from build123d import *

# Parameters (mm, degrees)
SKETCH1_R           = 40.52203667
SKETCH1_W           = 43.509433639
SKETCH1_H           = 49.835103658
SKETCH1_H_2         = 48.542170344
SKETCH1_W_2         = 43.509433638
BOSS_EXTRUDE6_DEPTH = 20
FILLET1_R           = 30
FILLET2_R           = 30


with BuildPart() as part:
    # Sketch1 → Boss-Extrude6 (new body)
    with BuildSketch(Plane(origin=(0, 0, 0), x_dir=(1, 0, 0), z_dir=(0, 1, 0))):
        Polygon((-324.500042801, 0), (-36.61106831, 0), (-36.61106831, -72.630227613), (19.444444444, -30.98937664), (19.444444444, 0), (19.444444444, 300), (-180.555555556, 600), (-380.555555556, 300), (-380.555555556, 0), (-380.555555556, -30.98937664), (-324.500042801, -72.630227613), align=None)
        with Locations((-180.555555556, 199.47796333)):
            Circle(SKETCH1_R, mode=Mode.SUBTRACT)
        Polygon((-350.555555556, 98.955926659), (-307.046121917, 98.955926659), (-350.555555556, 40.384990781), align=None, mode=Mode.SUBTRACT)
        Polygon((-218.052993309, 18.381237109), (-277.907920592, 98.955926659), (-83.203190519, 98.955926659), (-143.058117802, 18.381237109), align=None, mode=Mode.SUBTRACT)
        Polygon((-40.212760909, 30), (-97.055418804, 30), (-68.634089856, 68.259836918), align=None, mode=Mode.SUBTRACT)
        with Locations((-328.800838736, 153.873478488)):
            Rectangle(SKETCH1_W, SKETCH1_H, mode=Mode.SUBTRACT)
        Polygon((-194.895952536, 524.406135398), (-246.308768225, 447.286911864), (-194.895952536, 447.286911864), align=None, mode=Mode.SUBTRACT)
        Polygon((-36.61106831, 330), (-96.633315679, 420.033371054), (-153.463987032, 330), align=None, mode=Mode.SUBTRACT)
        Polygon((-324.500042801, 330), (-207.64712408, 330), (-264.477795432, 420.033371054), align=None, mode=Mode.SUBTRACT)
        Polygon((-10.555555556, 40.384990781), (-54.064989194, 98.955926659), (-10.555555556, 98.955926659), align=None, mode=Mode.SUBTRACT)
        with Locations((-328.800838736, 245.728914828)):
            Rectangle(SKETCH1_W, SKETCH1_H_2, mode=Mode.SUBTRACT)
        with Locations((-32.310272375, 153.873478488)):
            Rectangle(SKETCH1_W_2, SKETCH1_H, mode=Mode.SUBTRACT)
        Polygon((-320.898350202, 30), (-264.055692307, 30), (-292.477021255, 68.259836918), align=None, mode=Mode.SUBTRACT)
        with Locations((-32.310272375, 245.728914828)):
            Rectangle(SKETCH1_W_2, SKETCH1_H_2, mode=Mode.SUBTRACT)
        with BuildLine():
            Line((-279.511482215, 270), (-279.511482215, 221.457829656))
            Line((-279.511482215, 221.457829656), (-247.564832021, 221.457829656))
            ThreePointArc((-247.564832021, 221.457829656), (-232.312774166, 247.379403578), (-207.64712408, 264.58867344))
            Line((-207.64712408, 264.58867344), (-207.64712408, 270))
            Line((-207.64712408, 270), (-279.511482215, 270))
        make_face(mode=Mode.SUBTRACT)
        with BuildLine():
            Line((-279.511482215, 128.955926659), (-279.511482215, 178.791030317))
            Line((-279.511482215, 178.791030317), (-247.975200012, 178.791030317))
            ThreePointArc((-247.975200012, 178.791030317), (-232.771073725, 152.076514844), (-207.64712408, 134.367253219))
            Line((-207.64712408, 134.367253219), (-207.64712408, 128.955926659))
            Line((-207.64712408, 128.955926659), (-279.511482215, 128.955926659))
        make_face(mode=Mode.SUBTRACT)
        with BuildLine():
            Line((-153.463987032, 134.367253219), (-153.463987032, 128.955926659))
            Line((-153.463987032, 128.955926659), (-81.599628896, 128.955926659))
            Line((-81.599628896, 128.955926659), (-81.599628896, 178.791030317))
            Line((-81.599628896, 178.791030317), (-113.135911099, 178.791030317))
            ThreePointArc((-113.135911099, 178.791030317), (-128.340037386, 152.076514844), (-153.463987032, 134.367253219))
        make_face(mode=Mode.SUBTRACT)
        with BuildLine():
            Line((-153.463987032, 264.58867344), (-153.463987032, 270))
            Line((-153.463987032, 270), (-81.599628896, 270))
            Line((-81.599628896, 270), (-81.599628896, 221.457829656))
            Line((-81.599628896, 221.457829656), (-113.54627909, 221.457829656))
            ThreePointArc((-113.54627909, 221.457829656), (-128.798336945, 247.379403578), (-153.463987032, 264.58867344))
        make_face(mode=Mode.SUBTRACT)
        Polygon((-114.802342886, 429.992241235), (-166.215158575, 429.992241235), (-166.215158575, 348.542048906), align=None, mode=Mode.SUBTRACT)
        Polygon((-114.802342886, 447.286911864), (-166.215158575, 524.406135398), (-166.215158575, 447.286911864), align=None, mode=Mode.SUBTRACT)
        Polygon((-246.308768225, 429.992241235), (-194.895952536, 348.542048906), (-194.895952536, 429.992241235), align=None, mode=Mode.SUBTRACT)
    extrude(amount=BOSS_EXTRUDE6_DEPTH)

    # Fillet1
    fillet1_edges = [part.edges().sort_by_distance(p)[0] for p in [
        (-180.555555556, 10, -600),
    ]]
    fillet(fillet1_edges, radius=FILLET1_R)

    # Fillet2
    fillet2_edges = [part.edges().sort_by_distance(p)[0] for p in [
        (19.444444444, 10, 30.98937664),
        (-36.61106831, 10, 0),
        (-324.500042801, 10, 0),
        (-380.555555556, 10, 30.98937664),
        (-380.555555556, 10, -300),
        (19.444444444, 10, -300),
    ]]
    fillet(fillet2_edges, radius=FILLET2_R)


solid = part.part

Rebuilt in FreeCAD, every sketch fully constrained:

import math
import FreeCAD as App
import Part
import Sketcher
from FreeCAD import Vector


def edges_at(feature, points):
    """Names of the edges that pass closest to the given points."""
    edges = feature.Shape.Edges
    near = lambda p: min(range(len(edges)), key=lambda i: edges[i].distToShape(Part.Vertex(*p))[0])
    return sorted({f"Edge{near(p) + 1}" for p in points})


def add_polygon(sketch, points):
    """Adds a closed chain of lines whose ends are joined by coincident constraints."""
    first, n = sketch.GeometryCount, len(points)
    for a, b in zip(points, points[1:] + points[:1]):
        sketch.addGeometry(Part.LineSegment(App.Vector(*a, 0), App.Vector(*b, 0)), False)
    for i in range(n):
        sketch.addConstraint(Sketcher.Constraint("Coincident", first + i, 2, first + (i + 1) % n, 1))

doc = App.newDocument("Part")
body = doc.addObject("PartDesign::Body", "Body")

# Sketch on XZ plane
sketch1 = body.newObject("Sketcher::SketchObject", "Sketch")
sketch1.AttachmentSupport = (doc.getObject("XZ_Plane"), [""])
sketch1.MapMode = "FlatFace"
add_polygon(sketch1, [(-325, 0), (-37, 0), (-37, 73), (19, 31), (19, -300), (-181, -600), (-381, -300), (-381, 31), (-325, 73)])  # lines 0-8
add_polygon(sketch1, [(-351, -40), (-351, -99), (-307, -99)])  # lines 9-11
add_polygon(sketch1, [(-264, -30), (-321, -30), (-292, -68)])  # lines 12-14
add_polygon(sketch1, [(-307, -129), (-351, -129), (-351, -179), (-307, -179)])  # lines 15-18
add_polygon(sketch1, [(-307, -221), (-351, -221), (-351, -270), (-307, -270)])  # lines 19-22
sketch1.addGeometry(Part.LineSegment(Vector(-208, -129, 0), Vector(-280, -129, 0)), False)  # 23
sketch1.addGeometry(Part.LineSegment(Vector(-280, -129, 0), Vector(-280, -179, 0)), False)  # 24
sketch1.addGeometry(Part.LineSegment(Vector(-280, -179, 0), Vector(-248, -179, 0)), False)  # 25
sketch1.addGeometry(Part.ArcOfCircle(Part.Circle(Vector(-181, -199, 0), Vector(0, 0, 1), 71), math.radians(113), math.radians(163)), False)  # 26
sketch1.addGeometry(Part.LineSegment(Vector(-208, -134, 0), Vector(-208, -129, 0)), False)  # 27
sketch1.addGeometry(Part.LineSegment(Vector(-280, -221, 0), Vector(-280, -270, 0)), False)  # 28
sketch1.addGeometry(Part.LineSegment(Vector(-280, -270, 0), Vector(-208, -270, 0)), False)  # 29
sketch1.addGeometry(Part.LineSegment(Vector(-208, -270, 0), Vector(-208, -265, 0)), False)  # 30
sketch1.addGeometry(Part.ArcOfCircle(Part.Circle(Vector(-181, -199, 0), Vector(0, 0, 1), 71), math.radians(-162), math.radians(-113)), False)  # 31
sketch1.addGeometry(Part.LineSegment(Vector(-248, -221, 0), Vector(-280, -221, 0)), False)  # 32
add_polygon(sketch1, [(-143, -18), (-218, -18), (-278, -99), (-83, -99)])  # lines 33-36
add_polygon(sketch1, [(-69, -68), (-40, -30), (-97, -30)])  # lines 37-39
add_polygon(sketch1, [(-11, -99), (-11, -40), (-54, -99)])  # lines 40-42
sketch1.addGeometry(Part.Circle(Vector(-181, -199, 0), Vector(0, 0, 1), 41), False)  # 43
sketch1.addGeometry(Part.LineSegment(Vector(-153, -129, 0), Vector(-153, -134, 0)), False)  # 44
sketch1.addGeometry(Part.ArcOfCircle(Part.Circle(Vector(-181, -199, 0), Vector(0, 0, 1), 71), math.radians(17), math.radians(67)), False)  # 45
sketch1.addGeometry(Part.LineSegment(Vector(-113, -179, 0), Vector(-82, -179, 0)), False)  # 46
sketch1.addGeometry(Part.LineSegment(Vector(-82, -179, 0), Vector(-82, -129, 0)), False)  # 47
sketch1.addGeometry(Part.LineSegment(Vector(-82, -129, 0), Vector(-153, -129, 0)), False)  # 48
sketch1.addGeometry(Part.ArcOfCircle(Part.Circle(Vector(-181, -199, 0), Vector(0, 0, 1), 71), math.radians(-67), math.radians(-18)), False)  # 49
sketch1.addGeometry(Part.LineSegment(Vector(-153, -265, 0), Vector(-153, -270, 0)), False)  # 50
sketch1.addGeometry(Part.LineSegment(Vector(-153, -270, 0), Vector(-82, -270, 0)), False)  # 51
sketch1.addGeometry(Part.LineSegment(Vector(-82, -270, 0), Vector(-82, -221, 0)), False)  # 52
sketch1.addGeometry(Part.LineSegment(Vector(-82, -221, 0), Vector(-114, -221, 0)), False)  # 53
add_polygon(sketch1, [(-11, -129), (-54, -129), (-54, -179), (-11, -179)])  # lines 54-57
add_polygon(sketch1, [(-11, -221), (-54, -221), (-54, -270), (-11, -270)])  # lines 58-61
add_polygon(sketch1, [(-208, -330), (-325, -330), (-264, -420)])  # lines 62-64
add_polygon(sketch1, [(-195, -349), (-246, -430), (-195, -430)])  # lines 65-67
add_polygon(sketch1, [(-246, -447), (-195, -524), (-195, -447)])  # lines 68-70
add_polygon(sketch1, [(-166, -430), (-115, -430), (-166, -349)])  # lines 71-73
add_polygon(sketch1, [(-97, -420), (-37, -330), (-153, -330)])  # lines 74-76
add_polygon(sketch1, [(-166, -524), (-115, -447), (-166, -447)])  # lines 77-79
sketch1.addConstraint([
    Sketcher.Constraint("Coincident", 23, 2, 24, 1),
    Sketcher.Constraint("Coincident", 24, 2, 25, 1),
    Sketcher.Constraint("Coincident", 25, 2, 26, 2),
    Sketcher.Constraint("Coincident", 26, 1, 27, 1),
    Sketcher.Constraint("Coincident", 27, 2, 23, 1),
    Sketcher.Constraint("Coincident", 28, 2, 29, 1),
    Sketcher.Constraint("Coincident", 29, 2, 30, 1),
    Sketcher.Constraint("Coincident", 30, 2, 31, 2),
    Sketcher.Constraint("Coincident", 31, 1, 32, 1),
    Sketcher.Constraint("Coincident", 32, 2, 28, 1),
    Sketcher.Constraint("Coincident", 44, 2, 45, 2),
    Sketcher.Constraint("Coincident", 45, 1, 46, 1),
    Sketcher.Constraint("Coincident", 46, 2, 47, 1),
    Sketcher.Constraint("Coincident", 47, 2, 48, 1),
    Sketcher.Constraint("Coincident", 48, 2, 44, 1),
    Sketcher.Constraint("Coincident", 49, 1, 50, 1),
    Sketcher.Constraint("Coincident", 50, 2, 51, 1),
    Sketcher.Constraint("Coincident", 51, 2, 52, 1),
    Sketcher.Constraint("Coincident", 52, 2, 53, 1),
    Sketcher.Constraint("Coincident", 53, 2, 49, 2),
    Sketcher.Constraint("Horizontal", 0),
    Sketcher.Constraint("Vertical", 1),
    Sketcher.Constraint("Vertical", 3),
    Sketcher.Constraint("Vertical", 6),
    Sketcher.Constraint("Vertical", 8),
    Sketcher.Constraint("Vertical", 9),
    Sketcher.Constraint("Horizontal", 10),
    Sketcher.Constraint("Horizontal", 12),
    Sketcher.Constraint("Horizontal", 15),
    Sketcher.Constraint("Vertical", 16),
    Sketcher.Constraint("Horizontal", 17),
    Sketcher.Constraint("Vertical", 18),
    Sketcher.Constraint("Horizontal", 19),
    Sketcher.Constraint("Vertical", 20),
    Sketcher.Constraint("Horizontal", 21),
    Sketcher.Constraint("Vertical", 22),
    Sketcher.Constraint("Horizontal", 23),
    Sketcher.Constraint("Vertical", 24),
    Sketcher.Constraint("Horizontal", 25),
    Sketcher.Constraint("Vertical", 27),
    Sketcher.Constraint("Vertical", 28),
    Sketcher.Constraint("Horizontal", 29),
    Sketcher.Constraint("Vertical", 30),
    Sketcher.Constraint("Horizontal", 32),
    Sketcher.Constraint("Horizontal", 33),
    Sketcher.Constraint("Horizontal", 35),
    Sketcher.Constraint("Horizontal", 38),
    Sketcher.Constraint("Vertical", 40),
    Sketcher.Constraint("Horizontal", 42),
    Sketcher.Constraint("Vertical", 44),
    Sketcher.Constraint("Horizontal", 46),
    Sketcher.Constraint("Vertical", 47),
    Sketcher.Constraint("Horizontal", 48),
    Sketcher.Constraint("Vertical", 50),
    Sketcher.Constraint("Horizontal", 51),
    Sketcher.Constraint("Vertical", 52),
    Sketcher.Constraint("Horizontal", 53),
    Sketcher.Constraint("Horizontal", 54),
    Sketcher.Constraint("Vertical", 55),
    Sketcher.Constraint("Horizontal", 56),
    Sketcher.Constraint("Vertical", 57),
    Sketcher.Constraint("Horizontal", 58),
    Sketcher.Constraint("Vertical", 59),
    Sketcher.Constraint("Horizontal", 60),
    Sketcher.Constraint("Vertical", 61),
    Sketcher.Constraint("Horizontal", 62),
    Sketcher.Constraint("Horizontal", 66),
    Sketcher.Constraint("Vertical", 67),
    Sketcher.Constraint("Vertical", 69),
    Sketcher.Constraint("Horizontal", 70),
    Sketcher.Constraint("Horizontal", 71),
    Sketcher.Constraint("Vertical", 73),
    Sketcher.Constraint("Horizontal", 75),
    Sketcher.Constraint("Horizontal", 78),
    Sketcher.Constraint("Vertical", 79),
    Sketcher.Constraint("Coincident", 31, 3, 26, 3),
    Sketcher.Constraint("Coincident", 43, 3, 26, 3),
    Sketcher.Constraint("Coincident", 45, 3, 26, 3),
    Sketcher.Constraint("Coincident", 49, 3, 26, 3),
    Sketcher.Constraint("Equal", 26, 31),
    Sketcher.Constraint("Equal", 31, 45),
    Sketcher.Constraint("Equal", 45, 49),
    Sketcher.Constraint("PointOnObject", 0, 2, -1),
    Sketcher.Constraint("Perpendicular", 7, 11),
    Sketcher.Constraint("Parallel", 11, 13),
    Sketcher.Constraint("Perpendicular", 2, 14),
    Sketcher.Constraint("Parallel", 14, 34),
    Sketcher.Constraint("Parallel", 13, 36),
    Sketcher.Constraint("Parallel", 34, 37),
    Sketcher.Constraint("Parallel", 36, 39),
    Sketcher.Constraint("Parallel", 37, 41),
    Sketcher.Constraint("Parallel", 5, 63),
    Sketcher.Constraint("Parallel", 64, 65),
    Sketcher.Constraint("Parallel", 63, 68),
    Sketcher.Constraint("Parallel", 4, 74),
    Sketcher.Constraint("Parallel", 72, 76),
    Sketcher.Constraint("Parallel", 74, 77),
    Sketcher.Constraint("Horizontal", 3, 2, 5, 2),
    Sketcher.Constraint("Horizontal", 2, 2, 6, 2),
    Sketcher.Constraint("Horizontal", 1, 2, 7, 2),
    Sketcher.Constraint("Horizontal", 18, 2, 23, 2),
    Sketcher.Constraint("Horizontal", 17, 2, 24, 2),
    Sketcher.Constraint("Horizontal", 21, 2, 28, 2),
    Sketcher.Constraint("Horizontal", 22, 2, 31, 1),
    Sketcher.Constraint("Horizontal", 10, 2, 34, 2),
    Sketcher.Constraint("Horizontal", 14, 2, 37, 2),
    Sketcher.Constraint("Horizontal", 13, 2, 39, 2),
    Sketcher.Constraint("Horizontal", 11, 2, 40, 2),
    Sketcher.Constraint("Horizontal", 35, 2, 41, 2),
    Sketcher.Constraint("Horizontal", 26, 1, 44, 2),
    Sketcher.Constraint("Horizontal", 25, 2, 45, 1),
    Sketcher.Constraint("Horizontal", 27, 2, 47, 2),
    Sketcher.Constraint("Horizontal", 30, 2, 49, 1),
    Sketcher.Constraint("Horizontal", 29, 2, 50, 2),
    Sketcher.Constraint("Horizontal", 32, 2, 52, 2),
    Sketcher.Constraint("Horizontal", 48, 2, 54, 2),
    Sketcher.Constraint("Horizontal", 46, 2, 55, 2),
    Sketcher.Constraint("Horizontal", 53, 2, 58, 2),
    Sketcher.Constraint("Horizontal", 51, 2, 59, 2),
    Sketcher.Constraint("Horizontal", 66, 2, 71, 2),
    Sketcher.Constraint("Horizontal", 67, 2, 72, 2),
    Sketcher.Constraint("Horizontal", 64, 2, 74, 2),
    Sketcher.Constraint("Horizontal", 63, 2, 76, 2),
    Sketcher.Constraint("Horizontal", 70, 2, 77, 2),
    Sketcher.Constraint("Horizontal", 68, 2, 79, 2),
    Sketcher.Constraint("Vertical", 49, 3, 4, 2),
    Sketcher.Constraint("Vertical", 11, 2, 15, 2),
    Sketcher.Constraint("Vertical", 10, 2, 17, 2),
    Sketcher.Constraint("Vertical", 16, 2, 19, 2),
    Sketcher.Constraint("Vertical", 18, 2, 21, 2),
    Sketcher.Constraint("Vertical", 24, 2, 28, 2),
    Sketcher.Constraint("Vertical", 27, 2, 29, 2),
    Sketcher.Constraint("Vertical", 47, 2, 51, 2),
    Sketcher.Constraint("Vertical", 41, 2, 54, 2),
    Sketcher.Constraint("Vertical", 42, 2, 56, 2),
    Sketcher.Constraint("Vertical", 55, 2, 58, 2),
    Sketcher.Constraint("Vertical", 57, 2, 60, 2),
    Sketcher.Constraint("Vertical", 8, 2, 62, 2),
    Sketcher.Constraint("Vertical", 30, 2, 64, 2),
    Sketcher.Constraint("Vertical", 67, 2, 68, 2),
    Sketcher.Constraint("Vertical", 65, 2, 70, 2),
    Sketcher.Constraint("Vertical", 1, 2, 74, 2),
    Sketcher.Constraint("Vertical", 50, 2, 75, 2),
    Sketcher.Constraint("Vertical", 71, 2, 77, 2),
    Sketcher.Constraint("Vertical", 73, 2, 78, 2),
    Sketcher.Constraint("Equal", 21, 42),
    Sketcher.Constraint("Equal", 25, 46),
    Sketcher.Constraint("Equal", 27, 30),
    Sketcher.Constraint("DistanceY", 3, 2, -1, 1, 300.0),
    Sketcher.Constraint("DistanceY", 4, 2, -1, 1, 600.0),
    Sketcher.Constraint("DistanceY", 12, 2, -1, 1, 30.0),
    Sketcher.Constraint("DistanceY", 20, 2, -1, 1, 270.0),
    Sketcher.Constraint("DistanceY", 62, 2, -1, 1, 330.0),
    Sketcher.Constraint("Diameter", 43, 81.044073),
    Sketcher.Constraint("Radius", 26, 70.522037),
    Sketcher.Constraint("Distance", 64, 106.4694),
    Sketcher.Constraint("DistanceX", 23, 2, 23, 1, 71.864358),
    Sketcher.Constraint("DistanceX", 32, 2, 32, 1, 31.94665),
    Sketcher.Constraint("DistanceX", 35, 1, 35, 2, 194.70473),
    Sketcher.Constraint("DistanceX", 62, 2, 62, 1, 116.852919),
    Sketcher.Constraint("DistanceY", 20, 2, 20, 1, 48.54217),
    Sketcher.Constraint("DistanceX", 25, 2, -1, 1, 247.9752),
    Sketcher.Constraint("Distance", 11, 72.963178),
    Sketcher.Constraint("Distance", 13, 47.661169),
    Sketcher.Constraint("Distance", 65, 96.31932),
    Sketcher.Constraint("Distance", 68, 92.685772),
    Sketcher.Constraint("DistanceX", 0, 1, 0, 2, 287.888974),
    Sketcher.Constraint("DistanceX", 10, 1, 10, 2, 43.509434),
    Sketcher.Constraint("DistanceX", 25, 1, 25, 2, 31.536282),
    Sketcher.Constraint("DistanceX", 33, 2, 33, 1, 74.994876),
    Sketcher.Constraint("DistanceY", 1, 1, 1, 2, 72.630228),
    Sketcher.Constraint("DistanceX", 10, 2, -1, 1, 307.046122),
    Sketcher.Constraint("DistanceY", 11, 2, -1, 1, 40.384991),
    Sketcher.Constraint("DistanceX", 12, 2, -1, 1, 320.89835),
    Sketcher.Constraint("DistanceX", 34, 2, -1, 1, 277.907921),
    Sketcher.Constraint("DistanceX", 37, 2, -1, 1, 40.212761),
    Sketcher.Constraint("DistanceX", 41, 2, -1, 1, 54.064989),
    Sketcher.Constraint("DistanceX", 65, 2, -1, 1, 246.308768),
    Sketcher.Constraint("DistanceY", 65, 2, -1, 1, 429.992241),
    Sketcher.Constraint("DistanceY", 69, 2, -1, 1, 447.286912),
    Sketcher.Constraint("DistanceX", 72, 2, -1, 1, 166.215159),
])
pad1 = body.newObject("PartDesign::Pad", "Pad")
pad1.Profile = sketch1
pad1.Length = 20
pad1.Reversed = True
doc.recompute()

fillet = body.newObject("PartDesign::Fillet", "Fillet")
fillet.Base = (pad1, edges_at(pad1, [(-180.556, 10, -600)]))
fillet.Radius = 30
doc.recompute()

fillet2 = body.newObject("PartDesign::Fillet", "Fillet001")
fillet2.Base = (fillet, edges_at(fillet, [
    (19.444, 10, 30.989),
    (-36.611, 10, 0),
    (-324.5, 10, 0),
    (-380.556, 10, 30.989),
    (-380.556, 10, -300),
    (19.444, 10, -300),
]))
fillet2.Radius = 30

doc.recompute()
